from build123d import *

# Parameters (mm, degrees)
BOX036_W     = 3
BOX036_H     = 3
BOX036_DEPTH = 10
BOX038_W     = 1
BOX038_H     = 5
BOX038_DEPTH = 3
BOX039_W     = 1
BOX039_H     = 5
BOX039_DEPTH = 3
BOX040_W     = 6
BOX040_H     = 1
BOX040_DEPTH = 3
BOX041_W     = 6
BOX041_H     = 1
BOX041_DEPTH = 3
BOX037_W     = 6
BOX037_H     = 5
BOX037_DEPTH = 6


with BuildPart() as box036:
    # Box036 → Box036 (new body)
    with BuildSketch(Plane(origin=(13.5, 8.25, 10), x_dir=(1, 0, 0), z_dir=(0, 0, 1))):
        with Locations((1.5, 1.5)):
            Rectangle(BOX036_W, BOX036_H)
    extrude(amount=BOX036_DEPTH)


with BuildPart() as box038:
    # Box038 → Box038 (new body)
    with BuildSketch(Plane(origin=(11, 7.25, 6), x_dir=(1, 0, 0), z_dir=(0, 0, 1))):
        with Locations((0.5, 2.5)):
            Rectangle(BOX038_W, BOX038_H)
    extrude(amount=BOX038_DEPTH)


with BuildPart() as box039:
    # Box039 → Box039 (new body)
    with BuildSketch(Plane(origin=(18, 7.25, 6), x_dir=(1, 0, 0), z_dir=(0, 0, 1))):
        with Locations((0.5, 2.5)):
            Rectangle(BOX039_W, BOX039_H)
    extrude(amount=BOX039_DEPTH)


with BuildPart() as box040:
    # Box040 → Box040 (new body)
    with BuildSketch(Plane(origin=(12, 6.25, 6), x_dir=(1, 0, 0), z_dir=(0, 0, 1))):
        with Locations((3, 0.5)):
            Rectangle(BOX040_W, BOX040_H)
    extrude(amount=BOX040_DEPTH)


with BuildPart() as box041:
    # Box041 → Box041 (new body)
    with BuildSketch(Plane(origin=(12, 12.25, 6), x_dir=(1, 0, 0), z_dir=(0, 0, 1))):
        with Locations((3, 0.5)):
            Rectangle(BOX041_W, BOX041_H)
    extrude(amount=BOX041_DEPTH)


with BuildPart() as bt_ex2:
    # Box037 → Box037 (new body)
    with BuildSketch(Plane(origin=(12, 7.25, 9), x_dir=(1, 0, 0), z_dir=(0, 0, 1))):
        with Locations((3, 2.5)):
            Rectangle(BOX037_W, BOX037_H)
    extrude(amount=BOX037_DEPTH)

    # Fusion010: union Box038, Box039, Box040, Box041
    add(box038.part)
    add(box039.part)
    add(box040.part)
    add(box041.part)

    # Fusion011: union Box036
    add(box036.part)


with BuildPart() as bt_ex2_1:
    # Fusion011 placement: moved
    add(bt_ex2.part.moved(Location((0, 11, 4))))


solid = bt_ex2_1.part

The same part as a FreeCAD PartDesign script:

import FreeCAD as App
import Part
import Sketcher

V = App.Vector


def add_polygon(sketch, points):
    """Adds a closed chain of lines whose ends are joined by coincident constraints."""
    first, n = sketch.GeometryCount, len(points)
    for a, b in zip(points, points[1:] + points[:1]):
        sketch.addGeometry(Part.LineSegment(App.Vector(*a, 0), App.Vector(*b, 0)), False)
    for i in range(n):
        sketch.addConstraint(Sketcher.Constraint("Coincident", first + i, 2, first + (i + 1) % n, 1))

doc = App.newDocument("Part")
body = doc.addObject("PartDesign::Body", "Body")

sketch1 = body.newObject("Sketcher::SketchObject", "Sketch")
sketch1.AttachmentSupport = (doc.getObject("XY_Plane"), [""])
sketch1.MapMode = "FlatFace"
sketch1.AttachmentOffset = App.Placement(V(0, 0, 10), App.Rotation())
add_polygon(sketch1, [(13.5, 11.2), (13.5, 8.2), (16.5, 8.2), (16.5, 11.2)])
sketch1.addConstraint([
    Sketcher.Constraint("Vertical", 0),
    Sketcher.Constraint("Horizontal", 1),
    Sketcher.Constraint("Vertical", 2),
    Sketcher.Constraint("Horizontal", 3),
    Sketcher.Constraint("Equal", 3, 0),
    Sketcher.Constraint("DistanceX", 1, 1, 1, 2, 3.0),
    Sketcher.Constraint("DistanceX", -1, 1, 0, 2, 13.5),
    Sketcher.Constraint("DistanceY", -1, 1, 0, 2, 8.25),
])
pad1 = body.newObject("PartDesign::Pad", "Pad")
pad1.Profile = sketch1
pad1.Length = 10
body2 = doc.addObject("PartDesign::Body", "Body001")

sketch2 = body2.newObject("Sketcher::SketchObject", "Sketch001")
sketch2.AttachmentSupport = (doc.getObject("XY_Plane001"), [""])
sketch2.MapMode = "FlatFace"
sketch2.AttachmentOffset = App.Placement(V(0, 0, 6), App.Rotation())
add_polygon(sketch2, [(11, 12.2), (11, 7.2), (12, 7.2), (12, 12.2)])
sketch2.addConstraint([
    Sketcher.Constraint("Vertical", 0),
    Sketcher.Constraint("Horizontal", 1),
    Sketcher.Constraint("Vertical", 2),
    Sketcher.Constraint("Horizontal", 3),
    Sketcher.Constraint("DistanceX", 1, 1, 1, 2, 1.0),
    Sketcher.Constraint("DistanceY", 0, 2, 0, 1, 5.0),
    Sketcher.Constraint("DistanceX", -1, 1, 0, 2, 11.0),
    Sketcher.Constraint("DistanceY", -1, 1, 0, 2, 7.25),
])
pad2 = body2.newObject("PartDesign::Pad", "Pad001")
pad2.Profile = sketch2
pad2.Length = 3
body3 = doc.addObject("PartDesign::Body", "Body002")

sketch3 = body3.newObject("Sketcher::SketchObject", "Sketch002")
sketch3.AttachmentSupport = (doc.getObject("XY_Plane002"), [""])
sketch3.MapMode = "FlatFace"
sketch3.AttachmentOffset = App.Placement(V(0, 0, 6), App.Rotation())
add_polygon(sketch3, [(18, 12.2), (18, 7.2), (19, 7.2), (19, 12.2)])
sketch3.addConstraint([
    Sketcher.Constraint("Vertical", 0),
    Sketcher.Constraint("Horizontal", 1),
    Sketcher.Constraint("Vertical", 2),
    Sketcher.Constraint("Horizontal", 3),
    Sketcher.Constraint("DistanceX", 1, 1, 1, 2, 1.0),
    Sketcher.Constraint("DistanceY", 0, 2, 0, 1, 5.0),
    Sketcher.Constraint("DistanceX", -1, 1, 0, 2, 18.0),
    Sketcher.Constraint("DistanceY", -1, 1, 0, 2, 7.25),
])
pad3 = body3.newObject("PartDesign::Pad", "Pad002")
pad3.Profile = sketch3
pad3.Length = 3
body4 = doc.addObject("PartDesign::Body", "Body003")

sketch4 = body4.newObject("Sketcher::SketchObject", "Sketch003")
sketch4.AttachmentSupport = (doc.getObject("XY_Plane003"), [""])
sketch4.MapMode = "FlatFace"
sketch4.AttachmentOffset = App.Placement(V(0, 0, 6), App.Rotation())
add_polygon(sketch4, [(12, 7.2), (12, 6.2), (18, 6.2), (18, 7.2)])
sketch4.addConstraint([
    Sketcher.Constraint("Vertical", 0),
    Sketcher.Constraint("Horizontal", 1),
    Sketcher.Constraint("Vertical", 2),
    Sketcher.Constraint("Horizontal", 3),
    Sketcher.Constraint("DistanceX", 1, 1, 1, 2, 6.0),
    Sketcher.Constraint("DistanceY", 0, 2, 0, 1, 1.0),
    Sketcher.Constraint("DistanceX", -1, 1, 0, 2, 12.0),
    Sketcher.Constraint("DistanceY", -1, 1, 0, 2, 6.25),
])
pad4 = body4.newObject("PartDesign::Pad", "Pad003")
pad4.Profile = sketch4
pad4.Length = 3
body5 = doc.addObject("PartDesign::Body", "Body004")

sketch5 = body5.newObject("Sketcher::SketchObject", "Sketch004")
sketch5.AttachmentSupport = (doc.getObject("XY_Plane004"), [""])
sketch5.MapMode = "FlatFace"
sketch5.AttachmentOffset = App.Placement(V(0, 0, 6), App.Rotation())
add_polygon(sketch5, [(12, 13.2), (12, 12.2), (18, 12.2), (18, 13.2)])
sketch5.addConstraint([
    Sketcher.Constraint("Vertical", 0),
    Sketcher.Constraint("Horizontal", 1),
    Sketcher.Constraint("Vertical", 2),
    Sketcher.Constraint("Horizontal", 3),
    Sketcher.Constraint("DistanceX", 1, 1, 1, 2, 6.0),
    Sketcher.Constraint("DistanceY", 0, 2, 0, 1, 1.0),
    Sketcher.Constraint("DistanceX", -1, 1, 0, 2, 12.0),
    Sketcher.Constraint("DistanceY", -1, 1, 0, 2, 12.25),
])
pad5 = body5.newObject("PartDesign::Pad", "Pad004")
pad5.Profile = sketch5
pad5.Length = 3
body6 = doc.addObject("PartDesign::Body", "Body005")
body6.AllowCompound = True

sketch6 = body6.newObject("Sketcher::SketchObject", "Sketch005")
sketch6.AttachmentSupport = (doc.getObject("XY_Plane005"), [""])
sketch6.MapMode = "FlatFace"
sketch6.AttachmentOffset = App.Placement(V(0, 0, 9), App.Rotation())
add_polygon(sketch6, [(12, 12), (12, 7), (18, 7), (18, 12)])
sketch6.addConstraint([
    Sketcher.Constraint("Vertical", 0),
    Sketcher.Constraint("Horizontal", 1),
    Sketcher.Constraint("Vertical", 2),
    Sketcher.Constraint("Horizontal", 3),
    Sketcher.Constraint("DistanceX", 1, 1, 1, 2, 6.0),
    Sketcher.Constraint("DistanceY", 0, 2, 0, 1, 5.0),
    Sketcher.Constraint("DistanceX", -1, 1, 0, 2, 12.0),
    Sketcher.Constraint("DistanceY", -1, 1, 0, 2, 7.25),
])
pad6 = body6.newObject("PartDesign::Pad", "Pad005")
pad6.Profile = sketch6
pad6.Length = 6
doc.recompute()

boolean = body6.newObject("PartDesign::Boolean", "Boolean")
boolean.Type = "Fuse"
boolean.addObjects([body2])
doc.recompute()

boolean2 = body6.newObject("PartDesign::Boolean", "Boolean001")
boolean2.Type = "Fuse"
boolean2.addObjects([body3])
doc.recompute()

boolean3 = body6.newObject("PartDesign::Boolean", "Boolean002")
boolean3.Type = "Fuse"
boolean3.addObjects([body4])
doc.recompute()

boolean4 = body6.newObject("PartDesign::Boolean", "Boolean003")
boolean4.Type = "Fuse"
boolean4.addObjects([body5])
doc.recompute()

boolean5 = body6.newObject("PartDesign::Boolean", "Boolean004")
boolean5.Type = "Fuse"
boolean5.addObjects([body])
body7 = doc.addObject("PartDesign::Body", "Body006")
body7.AllowCompound = True
doc.recompute()

body6.Placement = App.Placement(V(0, 11, 4), App.Rotation(V(0, 0, 1), 0))
boolean6 = body7.newObject("PartDesign::Boolean", "Boolean005")
boolean6.Type = "Fuse"
boolean6.addObjects([body6])

doc.recompute()
